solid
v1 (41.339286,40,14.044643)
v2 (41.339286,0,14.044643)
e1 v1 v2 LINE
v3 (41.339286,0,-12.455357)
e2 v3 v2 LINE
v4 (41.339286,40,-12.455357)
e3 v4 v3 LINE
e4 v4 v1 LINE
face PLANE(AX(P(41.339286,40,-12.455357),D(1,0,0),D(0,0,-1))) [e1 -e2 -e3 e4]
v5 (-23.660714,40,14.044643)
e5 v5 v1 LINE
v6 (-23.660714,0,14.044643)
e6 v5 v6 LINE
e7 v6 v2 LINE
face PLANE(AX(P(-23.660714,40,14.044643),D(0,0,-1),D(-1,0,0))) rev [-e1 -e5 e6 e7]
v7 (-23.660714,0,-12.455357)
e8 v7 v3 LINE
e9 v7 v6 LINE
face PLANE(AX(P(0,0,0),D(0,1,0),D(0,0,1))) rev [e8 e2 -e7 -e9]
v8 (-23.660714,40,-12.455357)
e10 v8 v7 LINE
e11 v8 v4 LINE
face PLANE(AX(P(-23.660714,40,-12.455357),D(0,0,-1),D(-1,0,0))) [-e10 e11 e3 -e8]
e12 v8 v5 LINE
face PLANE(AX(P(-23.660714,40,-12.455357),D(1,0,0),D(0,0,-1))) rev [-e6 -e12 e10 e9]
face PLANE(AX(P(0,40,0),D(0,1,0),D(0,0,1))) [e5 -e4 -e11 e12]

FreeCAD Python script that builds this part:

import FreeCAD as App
import Part
import Sketcher

doc = App.newDocument("Part")
body = doc.addObject("PartDesign::Body", "Body")

sketch1 = body.newObject("Sketcher::SketchObject", "Sketch")
sketch1.AttachmentSupport = (doc.getObject("XZ_Plane"), [""])
sketch1.MapMode = "FlatFace"
sketch1.addGeometry(Part.LineSegment(App.Vector(-23.660714, -12.455357, 0), App.Vector(-23.660714, 14.044643, 0)), False)
sketch1.addGeometry(Part.LineSegment(App.Vector(-23.660714, 14.044643, 0), App.Vector(41.339286, 14.044643, 0)), False)
sketch1.addGeometry(Part.LineSegment(App.Vector(41.339286, 14.044643, 0), App.Vector(41.339286, -12.455357, 0)), False)
sketch1.addGeometry(Part.LineSegment(App.Vector(41.339286, -12.455357, 0), App.Vector(-23.660714, -12.455357, 0)), False)
sketch1.addConstraint(Sketcher.Constraint("Coincident", 0, 2, 1, 1))
sketch1.addConstraint(Sketcher.Constraint("Coincident", 1, 2, 2, 1))
sketch1.addConstraint(Sketcher.Constraint("Coincident", 2, 2, 3, 1))
sketch1.addConstraint(Sketcher.Constraint("Coincident", 3, 2, 0, 1))
sketch1.addConstraint(Sketcher.Constraint("Vertical", 0))
sketch1.addConstraint(Sketcher.Constraint("Horizontal", 1))
sketch1.addConstraint(Sketcher.Constraint("Vertical", 2))
sketch1.addConstraint(Sketcher.Constraint("Horizontal", 3))
sketch1.addConstraint(Sketcher.Constraint("DistanceX", 1, 1, 1, 2, 65.0))
sketch1.addConstraint(Sketcher.Constraint("DistanceY", 0, 1, 0, 2, 26.5))
sketch1.addConstraint(Sketcher.Constraint("DistanceX", 0, 2, -1, 1, 23.660714))
sketch1.addConstraint(Sketcher.Constraint("DistanceY", -1, 1, 0, 2, 14.044643))
pad1 = body.newObject("PartDesign::Pad", "Pad")
pad1.Profile = sketch1
pad1.Length = 40
pad1.Reversed = True

doc.recompute()
